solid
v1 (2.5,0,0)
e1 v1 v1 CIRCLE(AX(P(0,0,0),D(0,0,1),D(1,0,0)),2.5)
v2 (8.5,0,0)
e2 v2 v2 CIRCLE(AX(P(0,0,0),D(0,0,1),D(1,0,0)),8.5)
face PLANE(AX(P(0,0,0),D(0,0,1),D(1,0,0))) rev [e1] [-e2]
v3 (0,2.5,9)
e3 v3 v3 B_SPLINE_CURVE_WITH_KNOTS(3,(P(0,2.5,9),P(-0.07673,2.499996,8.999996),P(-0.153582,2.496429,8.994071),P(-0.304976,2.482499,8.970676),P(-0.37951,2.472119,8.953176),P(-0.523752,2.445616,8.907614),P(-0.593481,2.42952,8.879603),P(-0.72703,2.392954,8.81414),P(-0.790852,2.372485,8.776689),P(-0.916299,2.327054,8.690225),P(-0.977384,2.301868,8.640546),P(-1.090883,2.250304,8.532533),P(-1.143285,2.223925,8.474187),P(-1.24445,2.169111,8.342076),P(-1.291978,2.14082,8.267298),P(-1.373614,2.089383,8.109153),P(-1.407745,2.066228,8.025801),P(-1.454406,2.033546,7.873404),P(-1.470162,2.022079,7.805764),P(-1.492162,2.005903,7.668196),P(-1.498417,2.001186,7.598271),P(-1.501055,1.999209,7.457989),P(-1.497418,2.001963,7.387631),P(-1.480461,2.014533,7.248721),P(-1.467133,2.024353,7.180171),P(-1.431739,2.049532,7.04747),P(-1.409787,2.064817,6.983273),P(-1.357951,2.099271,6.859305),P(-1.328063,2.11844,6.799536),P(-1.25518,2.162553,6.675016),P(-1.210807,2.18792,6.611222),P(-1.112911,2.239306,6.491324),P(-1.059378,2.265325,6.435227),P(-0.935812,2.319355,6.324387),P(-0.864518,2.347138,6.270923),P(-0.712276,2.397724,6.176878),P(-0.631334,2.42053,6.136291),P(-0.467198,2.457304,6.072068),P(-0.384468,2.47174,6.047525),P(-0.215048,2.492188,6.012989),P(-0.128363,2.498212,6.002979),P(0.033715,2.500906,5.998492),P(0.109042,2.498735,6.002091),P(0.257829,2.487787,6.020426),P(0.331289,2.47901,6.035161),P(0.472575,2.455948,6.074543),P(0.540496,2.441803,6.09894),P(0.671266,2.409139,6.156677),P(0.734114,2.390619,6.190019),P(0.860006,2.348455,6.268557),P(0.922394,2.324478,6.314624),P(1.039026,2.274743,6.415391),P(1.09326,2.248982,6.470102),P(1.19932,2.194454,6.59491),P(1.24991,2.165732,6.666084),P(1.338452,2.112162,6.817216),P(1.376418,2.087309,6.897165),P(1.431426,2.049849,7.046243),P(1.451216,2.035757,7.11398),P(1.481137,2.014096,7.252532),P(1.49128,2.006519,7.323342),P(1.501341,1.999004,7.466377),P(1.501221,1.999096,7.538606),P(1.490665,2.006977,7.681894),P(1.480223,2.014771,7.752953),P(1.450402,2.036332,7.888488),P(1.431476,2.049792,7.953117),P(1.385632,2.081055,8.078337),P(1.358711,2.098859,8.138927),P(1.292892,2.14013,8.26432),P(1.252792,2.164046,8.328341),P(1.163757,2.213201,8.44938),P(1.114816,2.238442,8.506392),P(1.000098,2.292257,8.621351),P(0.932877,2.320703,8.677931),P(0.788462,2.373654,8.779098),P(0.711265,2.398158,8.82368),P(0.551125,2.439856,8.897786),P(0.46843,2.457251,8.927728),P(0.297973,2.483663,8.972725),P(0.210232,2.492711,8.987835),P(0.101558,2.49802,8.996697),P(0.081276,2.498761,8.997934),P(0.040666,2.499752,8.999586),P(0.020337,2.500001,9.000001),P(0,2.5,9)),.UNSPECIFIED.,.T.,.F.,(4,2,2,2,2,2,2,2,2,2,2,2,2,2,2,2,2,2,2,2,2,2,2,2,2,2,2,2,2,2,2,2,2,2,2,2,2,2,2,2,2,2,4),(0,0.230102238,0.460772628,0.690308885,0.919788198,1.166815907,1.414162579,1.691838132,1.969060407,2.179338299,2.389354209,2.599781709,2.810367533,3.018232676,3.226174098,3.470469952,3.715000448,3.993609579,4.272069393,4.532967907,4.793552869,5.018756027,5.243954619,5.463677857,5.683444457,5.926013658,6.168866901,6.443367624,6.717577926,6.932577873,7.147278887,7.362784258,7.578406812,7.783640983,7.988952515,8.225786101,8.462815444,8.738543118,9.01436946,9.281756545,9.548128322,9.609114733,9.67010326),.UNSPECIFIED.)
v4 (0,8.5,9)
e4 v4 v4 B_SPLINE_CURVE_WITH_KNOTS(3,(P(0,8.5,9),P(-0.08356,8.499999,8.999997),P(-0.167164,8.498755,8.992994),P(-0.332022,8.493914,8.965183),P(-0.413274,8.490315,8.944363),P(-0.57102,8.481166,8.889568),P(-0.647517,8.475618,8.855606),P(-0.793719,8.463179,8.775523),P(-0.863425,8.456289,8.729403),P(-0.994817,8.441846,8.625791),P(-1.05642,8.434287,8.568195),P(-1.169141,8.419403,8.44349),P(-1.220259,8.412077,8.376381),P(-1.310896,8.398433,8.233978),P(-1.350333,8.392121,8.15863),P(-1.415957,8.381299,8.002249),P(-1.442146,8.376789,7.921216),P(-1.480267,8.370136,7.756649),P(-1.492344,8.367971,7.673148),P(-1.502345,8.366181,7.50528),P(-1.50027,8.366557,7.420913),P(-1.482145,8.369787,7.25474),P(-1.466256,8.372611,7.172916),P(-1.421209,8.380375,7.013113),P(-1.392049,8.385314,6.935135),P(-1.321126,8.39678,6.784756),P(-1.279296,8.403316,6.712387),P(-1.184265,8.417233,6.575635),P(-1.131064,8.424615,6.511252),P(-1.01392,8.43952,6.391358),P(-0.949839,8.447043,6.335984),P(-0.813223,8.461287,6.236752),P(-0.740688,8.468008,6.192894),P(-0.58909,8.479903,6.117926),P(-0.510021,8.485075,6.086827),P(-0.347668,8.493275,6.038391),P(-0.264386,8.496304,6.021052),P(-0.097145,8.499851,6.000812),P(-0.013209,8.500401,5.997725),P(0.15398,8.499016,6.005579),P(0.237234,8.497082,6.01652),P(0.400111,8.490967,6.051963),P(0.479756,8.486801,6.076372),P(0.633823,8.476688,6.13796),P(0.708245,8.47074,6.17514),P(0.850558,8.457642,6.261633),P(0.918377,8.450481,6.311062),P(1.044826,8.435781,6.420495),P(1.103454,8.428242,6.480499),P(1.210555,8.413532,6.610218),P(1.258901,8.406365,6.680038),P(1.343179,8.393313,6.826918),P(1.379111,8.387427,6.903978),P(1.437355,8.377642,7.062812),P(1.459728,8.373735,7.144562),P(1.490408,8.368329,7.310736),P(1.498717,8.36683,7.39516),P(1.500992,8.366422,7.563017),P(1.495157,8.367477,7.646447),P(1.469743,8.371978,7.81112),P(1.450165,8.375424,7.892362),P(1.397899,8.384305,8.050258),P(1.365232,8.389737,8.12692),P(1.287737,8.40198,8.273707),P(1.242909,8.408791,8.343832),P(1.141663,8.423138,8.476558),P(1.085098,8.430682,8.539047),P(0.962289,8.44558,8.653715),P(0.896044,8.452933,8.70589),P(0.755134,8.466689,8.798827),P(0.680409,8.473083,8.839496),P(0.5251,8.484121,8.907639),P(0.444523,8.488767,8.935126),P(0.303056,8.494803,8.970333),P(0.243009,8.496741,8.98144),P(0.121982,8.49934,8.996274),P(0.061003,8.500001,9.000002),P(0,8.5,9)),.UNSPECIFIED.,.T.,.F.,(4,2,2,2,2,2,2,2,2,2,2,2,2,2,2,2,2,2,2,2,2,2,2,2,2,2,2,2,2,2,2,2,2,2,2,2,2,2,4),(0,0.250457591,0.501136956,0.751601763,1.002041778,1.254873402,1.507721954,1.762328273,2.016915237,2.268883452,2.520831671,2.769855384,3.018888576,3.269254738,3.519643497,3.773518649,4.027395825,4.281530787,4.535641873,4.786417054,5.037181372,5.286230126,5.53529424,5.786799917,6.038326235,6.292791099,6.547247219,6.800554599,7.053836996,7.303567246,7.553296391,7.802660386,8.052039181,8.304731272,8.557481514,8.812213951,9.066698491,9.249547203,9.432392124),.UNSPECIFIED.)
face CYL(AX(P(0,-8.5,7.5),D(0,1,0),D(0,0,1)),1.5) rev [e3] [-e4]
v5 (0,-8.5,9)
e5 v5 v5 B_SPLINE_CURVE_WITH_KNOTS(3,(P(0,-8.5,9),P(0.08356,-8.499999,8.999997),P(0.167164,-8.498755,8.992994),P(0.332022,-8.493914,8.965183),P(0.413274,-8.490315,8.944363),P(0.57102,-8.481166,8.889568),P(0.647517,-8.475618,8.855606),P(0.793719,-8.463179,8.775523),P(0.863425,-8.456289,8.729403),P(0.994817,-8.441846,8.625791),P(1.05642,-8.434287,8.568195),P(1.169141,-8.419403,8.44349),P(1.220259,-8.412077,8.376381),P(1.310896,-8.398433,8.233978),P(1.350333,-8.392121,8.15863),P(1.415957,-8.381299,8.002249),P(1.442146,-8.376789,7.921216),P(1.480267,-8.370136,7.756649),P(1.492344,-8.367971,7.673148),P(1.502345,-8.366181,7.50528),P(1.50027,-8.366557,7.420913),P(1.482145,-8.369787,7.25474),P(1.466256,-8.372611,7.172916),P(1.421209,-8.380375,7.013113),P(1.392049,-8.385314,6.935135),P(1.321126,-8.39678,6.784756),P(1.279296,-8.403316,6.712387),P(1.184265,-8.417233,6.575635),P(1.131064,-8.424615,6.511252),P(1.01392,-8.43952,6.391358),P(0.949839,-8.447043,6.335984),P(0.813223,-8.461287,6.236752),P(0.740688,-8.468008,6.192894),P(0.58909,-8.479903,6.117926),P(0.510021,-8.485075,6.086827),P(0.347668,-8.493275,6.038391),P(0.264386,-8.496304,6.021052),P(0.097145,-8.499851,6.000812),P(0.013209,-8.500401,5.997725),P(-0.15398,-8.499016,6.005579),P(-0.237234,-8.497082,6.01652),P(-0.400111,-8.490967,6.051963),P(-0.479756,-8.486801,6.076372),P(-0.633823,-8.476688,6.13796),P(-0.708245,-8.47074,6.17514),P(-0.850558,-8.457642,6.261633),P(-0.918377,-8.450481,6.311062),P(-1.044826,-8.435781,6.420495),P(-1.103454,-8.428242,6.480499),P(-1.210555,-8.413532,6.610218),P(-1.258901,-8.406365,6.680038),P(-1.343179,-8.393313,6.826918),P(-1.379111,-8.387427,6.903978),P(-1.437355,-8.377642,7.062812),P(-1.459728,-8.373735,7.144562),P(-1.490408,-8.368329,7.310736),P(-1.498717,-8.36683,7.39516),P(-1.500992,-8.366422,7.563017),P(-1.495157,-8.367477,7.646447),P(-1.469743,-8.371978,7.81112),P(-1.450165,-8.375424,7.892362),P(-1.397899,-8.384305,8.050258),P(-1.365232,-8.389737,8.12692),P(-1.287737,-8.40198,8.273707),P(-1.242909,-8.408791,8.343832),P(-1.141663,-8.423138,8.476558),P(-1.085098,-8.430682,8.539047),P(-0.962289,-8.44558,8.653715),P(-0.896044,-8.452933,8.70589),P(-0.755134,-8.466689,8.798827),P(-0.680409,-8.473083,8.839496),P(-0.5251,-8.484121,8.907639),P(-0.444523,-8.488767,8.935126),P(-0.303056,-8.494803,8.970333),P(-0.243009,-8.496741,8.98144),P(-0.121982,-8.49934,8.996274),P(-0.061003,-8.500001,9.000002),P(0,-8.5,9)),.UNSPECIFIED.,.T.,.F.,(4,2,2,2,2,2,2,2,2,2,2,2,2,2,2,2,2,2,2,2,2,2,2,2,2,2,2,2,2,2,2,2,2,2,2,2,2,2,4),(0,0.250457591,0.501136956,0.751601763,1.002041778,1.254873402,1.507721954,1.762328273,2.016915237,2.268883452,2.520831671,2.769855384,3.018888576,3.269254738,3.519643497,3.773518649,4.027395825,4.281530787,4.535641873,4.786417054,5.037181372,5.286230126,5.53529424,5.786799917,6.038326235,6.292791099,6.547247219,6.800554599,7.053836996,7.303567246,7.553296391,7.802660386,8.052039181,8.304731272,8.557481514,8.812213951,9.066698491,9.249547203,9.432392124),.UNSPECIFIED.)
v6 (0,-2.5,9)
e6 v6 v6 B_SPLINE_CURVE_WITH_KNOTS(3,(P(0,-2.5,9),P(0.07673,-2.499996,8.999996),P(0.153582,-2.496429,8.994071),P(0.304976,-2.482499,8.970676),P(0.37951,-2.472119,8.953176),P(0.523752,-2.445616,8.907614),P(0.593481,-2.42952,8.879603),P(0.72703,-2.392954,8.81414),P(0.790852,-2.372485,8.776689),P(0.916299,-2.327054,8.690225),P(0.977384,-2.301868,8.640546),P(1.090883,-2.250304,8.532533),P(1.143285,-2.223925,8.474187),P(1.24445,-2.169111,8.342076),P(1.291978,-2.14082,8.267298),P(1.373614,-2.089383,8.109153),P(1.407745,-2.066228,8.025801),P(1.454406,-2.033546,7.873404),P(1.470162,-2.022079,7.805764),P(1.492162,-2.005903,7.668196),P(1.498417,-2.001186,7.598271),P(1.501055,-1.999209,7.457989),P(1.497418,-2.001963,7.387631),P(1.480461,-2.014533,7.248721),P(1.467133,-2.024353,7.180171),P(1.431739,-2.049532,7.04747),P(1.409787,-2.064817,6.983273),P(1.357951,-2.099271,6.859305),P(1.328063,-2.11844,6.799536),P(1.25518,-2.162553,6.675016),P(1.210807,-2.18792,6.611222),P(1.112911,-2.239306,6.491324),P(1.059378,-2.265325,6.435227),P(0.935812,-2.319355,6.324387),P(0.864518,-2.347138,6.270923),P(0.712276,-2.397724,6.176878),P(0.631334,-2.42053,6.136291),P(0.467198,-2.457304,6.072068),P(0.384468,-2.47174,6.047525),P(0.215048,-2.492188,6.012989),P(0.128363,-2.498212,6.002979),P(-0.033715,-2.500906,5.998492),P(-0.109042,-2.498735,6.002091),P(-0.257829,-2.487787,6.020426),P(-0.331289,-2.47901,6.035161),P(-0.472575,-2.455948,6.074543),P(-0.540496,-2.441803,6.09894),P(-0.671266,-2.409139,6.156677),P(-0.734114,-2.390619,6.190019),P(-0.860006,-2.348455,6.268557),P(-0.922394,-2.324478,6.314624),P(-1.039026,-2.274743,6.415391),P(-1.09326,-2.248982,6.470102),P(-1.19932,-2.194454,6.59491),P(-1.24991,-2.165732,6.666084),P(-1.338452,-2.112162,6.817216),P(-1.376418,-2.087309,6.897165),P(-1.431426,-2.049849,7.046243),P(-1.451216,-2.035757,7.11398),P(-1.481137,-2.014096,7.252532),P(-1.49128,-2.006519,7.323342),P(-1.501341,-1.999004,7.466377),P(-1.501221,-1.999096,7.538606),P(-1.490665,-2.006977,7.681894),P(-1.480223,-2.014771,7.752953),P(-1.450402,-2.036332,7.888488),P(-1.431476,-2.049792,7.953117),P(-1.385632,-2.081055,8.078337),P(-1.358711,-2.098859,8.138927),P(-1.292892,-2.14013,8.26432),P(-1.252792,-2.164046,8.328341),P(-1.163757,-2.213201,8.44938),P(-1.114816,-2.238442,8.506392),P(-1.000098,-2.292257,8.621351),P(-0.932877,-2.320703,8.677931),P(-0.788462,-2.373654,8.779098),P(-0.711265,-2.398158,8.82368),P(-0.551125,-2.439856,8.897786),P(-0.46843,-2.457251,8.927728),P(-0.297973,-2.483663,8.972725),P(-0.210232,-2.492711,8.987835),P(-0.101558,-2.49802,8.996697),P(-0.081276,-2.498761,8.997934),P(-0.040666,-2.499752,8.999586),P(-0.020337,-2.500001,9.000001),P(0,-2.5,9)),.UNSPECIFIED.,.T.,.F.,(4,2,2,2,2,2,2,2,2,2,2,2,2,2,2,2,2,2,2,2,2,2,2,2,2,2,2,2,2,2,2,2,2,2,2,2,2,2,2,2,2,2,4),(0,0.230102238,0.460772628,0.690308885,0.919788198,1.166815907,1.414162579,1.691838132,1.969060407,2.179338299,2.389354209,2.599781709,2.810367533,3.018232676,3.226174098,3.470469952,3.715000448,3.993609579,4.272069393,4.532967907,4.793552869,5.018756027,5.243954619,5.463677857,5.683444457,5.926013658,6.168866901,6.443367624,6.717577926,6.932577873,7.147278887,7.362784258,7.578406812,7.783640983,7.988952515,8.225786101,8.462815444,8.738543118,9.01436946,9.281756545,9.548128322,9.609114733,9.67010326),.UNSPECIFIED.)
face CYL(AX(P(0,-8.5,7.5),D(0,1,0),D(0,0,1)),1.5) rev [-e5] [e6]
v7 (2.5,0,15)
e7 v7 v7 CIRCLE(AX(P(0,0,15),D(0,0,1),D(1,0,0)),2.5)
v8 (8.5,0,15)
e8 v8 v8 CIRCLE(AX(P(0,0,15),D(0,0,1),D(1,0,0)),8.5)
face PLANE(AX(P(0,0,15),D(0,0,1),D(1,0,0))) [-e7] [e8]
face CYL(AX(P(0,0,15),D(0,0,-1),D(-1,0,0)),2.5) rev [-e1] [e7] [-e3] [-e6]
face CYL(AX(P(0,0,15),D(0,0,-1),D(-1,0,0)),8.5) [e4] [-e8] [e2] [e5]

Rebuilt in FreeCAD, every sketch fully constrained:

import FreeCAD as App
import Part
import Sketcher
Q = App.Units.Quantity

doc = App.newDocument("Part")
params = doc.addObject("Spreadsheet::Sheet", "Params")
for row, (alias, value) in enumerate([
    ("sketch1_diameter", "17 mm"),
    ("sketch1_diameter2", "5 mm"),
    ("pad1_length", "15 mm"),
    ("sketch2_diameter", "3 mm"),
], start=1):
    params.set(f"A{row}", alias)
    params.set(f"B{row}", "=" + value)
    params.setAlias(f"B{row}", alias)

body = doc.addObject("PartDesign::Body", "Body")

sketch1 = body.newObject("Sketcher::SketchObject", "Sketch")
sketch1.AttachmentSupport = (doc.getObject("XY_Plane"), [""])
sketch1.MapMode = "FlatFace"
sketch1.addGeometry(Part.Circle(App.Vector(0, 0, 0), App.Vector(0, 0, 1), 8.5), False)
sketch1.addGeometry(Part.Circle(App.Vector(0, 0, 0), App.Vector(0, 0, 1), 2.5), False)
sketch1.addConstraint(Sketcher.Constraint("Coincident", 0, 3, -1, 1))
sketch1.addConstraint(Sketcher.Constraint("Coincident", 1, 3, -1, 1))
sketch1.addConstraint(Sketcher.Constraint("Diameter", 0, Q("17 mm")))
sketch1.addConstraint(Sketcher.Constraint("Diameter", 1, Q("5 mm")))
sketch1.setExpression("Constraints[2]", "Params.sketch1_diameter")
sketch1.setExpression("Constraints[3]", "Params.sketch1_diameter2")
pad1 = body.newObject("PartDesign::Pad", "Pad")
pad1.Profile = sketch1
pad1.setExpression("Length", "Params.pad1_length")

sketch2 = body.newObject("Sketcher::SketchObject", "Sketch001")
sketch2.AttachmentSupport = (doc.getObject("XZ_Plane"), [""])
sketch2.MapMode = "FlatFace"
sketch2.addGeometry(Part.Circle(App.Vector(0, 7.5, 0), App.Vector(0, 0, 1), 1.5), False)
sketch2.addConstraint(Sketcher.Constraint("PointOnObject", 0, 3, -2))
sketch2.addConstraint(Sketcher.Constraint("Diameter", 0, Q("3 mm")))
sketch2.addConstraint(Sketcher.Constraint("DistanceY", -1, 1, 0, 3, Q("7.5 mm")))
sketch2.setExpression("Constraints[1]", "Params.sketch2_diameter")
pocket1 = body.newObject("PartDesign::Pocket", "Pocket")
pocket1.Profile = sketch2
pocket1.Type = "ThroughAll"
pocket1.Midplane = True

doc.recompute()
